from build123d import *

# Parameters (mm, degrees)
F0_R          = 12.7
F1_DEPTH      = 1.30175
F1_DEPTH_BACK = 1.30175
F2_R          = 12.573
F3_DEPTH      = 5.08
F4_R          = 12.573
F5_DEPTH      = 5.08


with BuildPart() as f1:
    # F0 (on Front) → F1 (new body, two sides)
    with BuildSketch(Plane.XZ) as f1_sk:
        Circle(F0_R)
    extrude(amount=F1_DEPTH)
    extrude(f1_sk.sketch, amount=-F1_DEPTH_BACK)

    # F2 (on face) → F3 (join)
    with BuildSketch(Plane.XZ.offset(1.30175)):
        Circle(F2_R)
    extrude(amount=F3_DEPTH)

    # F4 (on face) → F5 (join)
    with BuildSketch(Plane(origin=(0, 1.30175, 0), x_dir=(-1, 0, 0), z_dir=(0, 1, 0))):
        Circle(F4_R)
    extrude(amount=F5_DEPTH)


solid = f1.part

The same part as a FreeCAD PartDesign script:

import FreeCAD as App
import Part
import Sketcher
from FreeCAD import Vector
Q = App.Units.Quantity

doc = App.newDocument("Part")
body = doc.addObject("PartDesign::Body", "Body")

# Sketch on XZ plane
sketch1 = doc.addObject("Sketcher::SketchObject", "Sketch")
body.addObject(sketch1)
sketch1.AttachmentSupport = (doc.XZ_Plane, [""])
sketch1.MapMode = "FlatFace"
sketch1.addGeometry(Part.Circle(Vector(0, 0, 0), Vector(0, 0, 1), 13), False)
sketch1.addConstraint([
    Sketcher.Constraint("Coincident", 0, 3, -1, 1),
    Sketcher.Constraint("Diameter", 0, Q("1 in")),
])
pad1 = doc.addObject("PartDesign::Pad", "Pad")
body.addObject(pad1)
pad1.Profile = sketch1
pad1.Type = "TwoLengths"
pad1.Length = 1.30175
pad1.Length2 = 1.30175

# Sketch on XZ plane
sketch2 = doc.addObject("Sketcher::SketchObject", "Sketch001")
body.addObject(sketch2)
sketch2.AttachmentSupport = (doc.XZ_Plane, [""])
sketch2.MapMode = "FlatFace"
sketch2.AttachmentOffset = App.Placement(Vector(0, 0, 1.30175), App.Rotation())
sketch2.addGeometry(Part.Circle(Vector(0, 0, 0), Vector(0, 0, 1), 13), False)
sketch2.addConstraint([
    Sketcher.Constraint("Coincident", 0, 3, -1, 1),
    Sketcher.Constraint("Diameter", 0, Q("0.99 in")),
])
pad2 = doc.addObject("PartDesign::Pad", "Pad001")
body.addObject(pad2)
pad2.Profile = sketch2
pad2.Length = Q("0.2 in")

# Sketch on XZ plane
sketch3 = doc.addObject("Sketcher::SketchObject", "Sketch002")
body.addObject(sketch3)
sketch3.AttachmentSupport = (doc.XZ_Plane, [""])
sketch3.MapMode = "FlatFace"
sketch3.AttachmentOffset = App.Placement(Vector(0, 0, -1.30175), App.Rotation())
sketch3.addGeometry(Part.Circle(Vector(0, 0, 0), Vector(0, 0, 1), 13), False)
sketch3.addConstraint([
    Sketcher.Constraint("Coincident", 0, 3, -1, 1),
    Sketcher.Constraint("Diameter", 0, Q("0.99 in")),
])
pad3 = doc.addObject("PartDesign::Pad", "Pad002")
body.addObject(pad3)
pad3.Profile = sketch3
pad3.Length = Q("0.2 in")
pad3.Reversed = True

doc.recompute()
